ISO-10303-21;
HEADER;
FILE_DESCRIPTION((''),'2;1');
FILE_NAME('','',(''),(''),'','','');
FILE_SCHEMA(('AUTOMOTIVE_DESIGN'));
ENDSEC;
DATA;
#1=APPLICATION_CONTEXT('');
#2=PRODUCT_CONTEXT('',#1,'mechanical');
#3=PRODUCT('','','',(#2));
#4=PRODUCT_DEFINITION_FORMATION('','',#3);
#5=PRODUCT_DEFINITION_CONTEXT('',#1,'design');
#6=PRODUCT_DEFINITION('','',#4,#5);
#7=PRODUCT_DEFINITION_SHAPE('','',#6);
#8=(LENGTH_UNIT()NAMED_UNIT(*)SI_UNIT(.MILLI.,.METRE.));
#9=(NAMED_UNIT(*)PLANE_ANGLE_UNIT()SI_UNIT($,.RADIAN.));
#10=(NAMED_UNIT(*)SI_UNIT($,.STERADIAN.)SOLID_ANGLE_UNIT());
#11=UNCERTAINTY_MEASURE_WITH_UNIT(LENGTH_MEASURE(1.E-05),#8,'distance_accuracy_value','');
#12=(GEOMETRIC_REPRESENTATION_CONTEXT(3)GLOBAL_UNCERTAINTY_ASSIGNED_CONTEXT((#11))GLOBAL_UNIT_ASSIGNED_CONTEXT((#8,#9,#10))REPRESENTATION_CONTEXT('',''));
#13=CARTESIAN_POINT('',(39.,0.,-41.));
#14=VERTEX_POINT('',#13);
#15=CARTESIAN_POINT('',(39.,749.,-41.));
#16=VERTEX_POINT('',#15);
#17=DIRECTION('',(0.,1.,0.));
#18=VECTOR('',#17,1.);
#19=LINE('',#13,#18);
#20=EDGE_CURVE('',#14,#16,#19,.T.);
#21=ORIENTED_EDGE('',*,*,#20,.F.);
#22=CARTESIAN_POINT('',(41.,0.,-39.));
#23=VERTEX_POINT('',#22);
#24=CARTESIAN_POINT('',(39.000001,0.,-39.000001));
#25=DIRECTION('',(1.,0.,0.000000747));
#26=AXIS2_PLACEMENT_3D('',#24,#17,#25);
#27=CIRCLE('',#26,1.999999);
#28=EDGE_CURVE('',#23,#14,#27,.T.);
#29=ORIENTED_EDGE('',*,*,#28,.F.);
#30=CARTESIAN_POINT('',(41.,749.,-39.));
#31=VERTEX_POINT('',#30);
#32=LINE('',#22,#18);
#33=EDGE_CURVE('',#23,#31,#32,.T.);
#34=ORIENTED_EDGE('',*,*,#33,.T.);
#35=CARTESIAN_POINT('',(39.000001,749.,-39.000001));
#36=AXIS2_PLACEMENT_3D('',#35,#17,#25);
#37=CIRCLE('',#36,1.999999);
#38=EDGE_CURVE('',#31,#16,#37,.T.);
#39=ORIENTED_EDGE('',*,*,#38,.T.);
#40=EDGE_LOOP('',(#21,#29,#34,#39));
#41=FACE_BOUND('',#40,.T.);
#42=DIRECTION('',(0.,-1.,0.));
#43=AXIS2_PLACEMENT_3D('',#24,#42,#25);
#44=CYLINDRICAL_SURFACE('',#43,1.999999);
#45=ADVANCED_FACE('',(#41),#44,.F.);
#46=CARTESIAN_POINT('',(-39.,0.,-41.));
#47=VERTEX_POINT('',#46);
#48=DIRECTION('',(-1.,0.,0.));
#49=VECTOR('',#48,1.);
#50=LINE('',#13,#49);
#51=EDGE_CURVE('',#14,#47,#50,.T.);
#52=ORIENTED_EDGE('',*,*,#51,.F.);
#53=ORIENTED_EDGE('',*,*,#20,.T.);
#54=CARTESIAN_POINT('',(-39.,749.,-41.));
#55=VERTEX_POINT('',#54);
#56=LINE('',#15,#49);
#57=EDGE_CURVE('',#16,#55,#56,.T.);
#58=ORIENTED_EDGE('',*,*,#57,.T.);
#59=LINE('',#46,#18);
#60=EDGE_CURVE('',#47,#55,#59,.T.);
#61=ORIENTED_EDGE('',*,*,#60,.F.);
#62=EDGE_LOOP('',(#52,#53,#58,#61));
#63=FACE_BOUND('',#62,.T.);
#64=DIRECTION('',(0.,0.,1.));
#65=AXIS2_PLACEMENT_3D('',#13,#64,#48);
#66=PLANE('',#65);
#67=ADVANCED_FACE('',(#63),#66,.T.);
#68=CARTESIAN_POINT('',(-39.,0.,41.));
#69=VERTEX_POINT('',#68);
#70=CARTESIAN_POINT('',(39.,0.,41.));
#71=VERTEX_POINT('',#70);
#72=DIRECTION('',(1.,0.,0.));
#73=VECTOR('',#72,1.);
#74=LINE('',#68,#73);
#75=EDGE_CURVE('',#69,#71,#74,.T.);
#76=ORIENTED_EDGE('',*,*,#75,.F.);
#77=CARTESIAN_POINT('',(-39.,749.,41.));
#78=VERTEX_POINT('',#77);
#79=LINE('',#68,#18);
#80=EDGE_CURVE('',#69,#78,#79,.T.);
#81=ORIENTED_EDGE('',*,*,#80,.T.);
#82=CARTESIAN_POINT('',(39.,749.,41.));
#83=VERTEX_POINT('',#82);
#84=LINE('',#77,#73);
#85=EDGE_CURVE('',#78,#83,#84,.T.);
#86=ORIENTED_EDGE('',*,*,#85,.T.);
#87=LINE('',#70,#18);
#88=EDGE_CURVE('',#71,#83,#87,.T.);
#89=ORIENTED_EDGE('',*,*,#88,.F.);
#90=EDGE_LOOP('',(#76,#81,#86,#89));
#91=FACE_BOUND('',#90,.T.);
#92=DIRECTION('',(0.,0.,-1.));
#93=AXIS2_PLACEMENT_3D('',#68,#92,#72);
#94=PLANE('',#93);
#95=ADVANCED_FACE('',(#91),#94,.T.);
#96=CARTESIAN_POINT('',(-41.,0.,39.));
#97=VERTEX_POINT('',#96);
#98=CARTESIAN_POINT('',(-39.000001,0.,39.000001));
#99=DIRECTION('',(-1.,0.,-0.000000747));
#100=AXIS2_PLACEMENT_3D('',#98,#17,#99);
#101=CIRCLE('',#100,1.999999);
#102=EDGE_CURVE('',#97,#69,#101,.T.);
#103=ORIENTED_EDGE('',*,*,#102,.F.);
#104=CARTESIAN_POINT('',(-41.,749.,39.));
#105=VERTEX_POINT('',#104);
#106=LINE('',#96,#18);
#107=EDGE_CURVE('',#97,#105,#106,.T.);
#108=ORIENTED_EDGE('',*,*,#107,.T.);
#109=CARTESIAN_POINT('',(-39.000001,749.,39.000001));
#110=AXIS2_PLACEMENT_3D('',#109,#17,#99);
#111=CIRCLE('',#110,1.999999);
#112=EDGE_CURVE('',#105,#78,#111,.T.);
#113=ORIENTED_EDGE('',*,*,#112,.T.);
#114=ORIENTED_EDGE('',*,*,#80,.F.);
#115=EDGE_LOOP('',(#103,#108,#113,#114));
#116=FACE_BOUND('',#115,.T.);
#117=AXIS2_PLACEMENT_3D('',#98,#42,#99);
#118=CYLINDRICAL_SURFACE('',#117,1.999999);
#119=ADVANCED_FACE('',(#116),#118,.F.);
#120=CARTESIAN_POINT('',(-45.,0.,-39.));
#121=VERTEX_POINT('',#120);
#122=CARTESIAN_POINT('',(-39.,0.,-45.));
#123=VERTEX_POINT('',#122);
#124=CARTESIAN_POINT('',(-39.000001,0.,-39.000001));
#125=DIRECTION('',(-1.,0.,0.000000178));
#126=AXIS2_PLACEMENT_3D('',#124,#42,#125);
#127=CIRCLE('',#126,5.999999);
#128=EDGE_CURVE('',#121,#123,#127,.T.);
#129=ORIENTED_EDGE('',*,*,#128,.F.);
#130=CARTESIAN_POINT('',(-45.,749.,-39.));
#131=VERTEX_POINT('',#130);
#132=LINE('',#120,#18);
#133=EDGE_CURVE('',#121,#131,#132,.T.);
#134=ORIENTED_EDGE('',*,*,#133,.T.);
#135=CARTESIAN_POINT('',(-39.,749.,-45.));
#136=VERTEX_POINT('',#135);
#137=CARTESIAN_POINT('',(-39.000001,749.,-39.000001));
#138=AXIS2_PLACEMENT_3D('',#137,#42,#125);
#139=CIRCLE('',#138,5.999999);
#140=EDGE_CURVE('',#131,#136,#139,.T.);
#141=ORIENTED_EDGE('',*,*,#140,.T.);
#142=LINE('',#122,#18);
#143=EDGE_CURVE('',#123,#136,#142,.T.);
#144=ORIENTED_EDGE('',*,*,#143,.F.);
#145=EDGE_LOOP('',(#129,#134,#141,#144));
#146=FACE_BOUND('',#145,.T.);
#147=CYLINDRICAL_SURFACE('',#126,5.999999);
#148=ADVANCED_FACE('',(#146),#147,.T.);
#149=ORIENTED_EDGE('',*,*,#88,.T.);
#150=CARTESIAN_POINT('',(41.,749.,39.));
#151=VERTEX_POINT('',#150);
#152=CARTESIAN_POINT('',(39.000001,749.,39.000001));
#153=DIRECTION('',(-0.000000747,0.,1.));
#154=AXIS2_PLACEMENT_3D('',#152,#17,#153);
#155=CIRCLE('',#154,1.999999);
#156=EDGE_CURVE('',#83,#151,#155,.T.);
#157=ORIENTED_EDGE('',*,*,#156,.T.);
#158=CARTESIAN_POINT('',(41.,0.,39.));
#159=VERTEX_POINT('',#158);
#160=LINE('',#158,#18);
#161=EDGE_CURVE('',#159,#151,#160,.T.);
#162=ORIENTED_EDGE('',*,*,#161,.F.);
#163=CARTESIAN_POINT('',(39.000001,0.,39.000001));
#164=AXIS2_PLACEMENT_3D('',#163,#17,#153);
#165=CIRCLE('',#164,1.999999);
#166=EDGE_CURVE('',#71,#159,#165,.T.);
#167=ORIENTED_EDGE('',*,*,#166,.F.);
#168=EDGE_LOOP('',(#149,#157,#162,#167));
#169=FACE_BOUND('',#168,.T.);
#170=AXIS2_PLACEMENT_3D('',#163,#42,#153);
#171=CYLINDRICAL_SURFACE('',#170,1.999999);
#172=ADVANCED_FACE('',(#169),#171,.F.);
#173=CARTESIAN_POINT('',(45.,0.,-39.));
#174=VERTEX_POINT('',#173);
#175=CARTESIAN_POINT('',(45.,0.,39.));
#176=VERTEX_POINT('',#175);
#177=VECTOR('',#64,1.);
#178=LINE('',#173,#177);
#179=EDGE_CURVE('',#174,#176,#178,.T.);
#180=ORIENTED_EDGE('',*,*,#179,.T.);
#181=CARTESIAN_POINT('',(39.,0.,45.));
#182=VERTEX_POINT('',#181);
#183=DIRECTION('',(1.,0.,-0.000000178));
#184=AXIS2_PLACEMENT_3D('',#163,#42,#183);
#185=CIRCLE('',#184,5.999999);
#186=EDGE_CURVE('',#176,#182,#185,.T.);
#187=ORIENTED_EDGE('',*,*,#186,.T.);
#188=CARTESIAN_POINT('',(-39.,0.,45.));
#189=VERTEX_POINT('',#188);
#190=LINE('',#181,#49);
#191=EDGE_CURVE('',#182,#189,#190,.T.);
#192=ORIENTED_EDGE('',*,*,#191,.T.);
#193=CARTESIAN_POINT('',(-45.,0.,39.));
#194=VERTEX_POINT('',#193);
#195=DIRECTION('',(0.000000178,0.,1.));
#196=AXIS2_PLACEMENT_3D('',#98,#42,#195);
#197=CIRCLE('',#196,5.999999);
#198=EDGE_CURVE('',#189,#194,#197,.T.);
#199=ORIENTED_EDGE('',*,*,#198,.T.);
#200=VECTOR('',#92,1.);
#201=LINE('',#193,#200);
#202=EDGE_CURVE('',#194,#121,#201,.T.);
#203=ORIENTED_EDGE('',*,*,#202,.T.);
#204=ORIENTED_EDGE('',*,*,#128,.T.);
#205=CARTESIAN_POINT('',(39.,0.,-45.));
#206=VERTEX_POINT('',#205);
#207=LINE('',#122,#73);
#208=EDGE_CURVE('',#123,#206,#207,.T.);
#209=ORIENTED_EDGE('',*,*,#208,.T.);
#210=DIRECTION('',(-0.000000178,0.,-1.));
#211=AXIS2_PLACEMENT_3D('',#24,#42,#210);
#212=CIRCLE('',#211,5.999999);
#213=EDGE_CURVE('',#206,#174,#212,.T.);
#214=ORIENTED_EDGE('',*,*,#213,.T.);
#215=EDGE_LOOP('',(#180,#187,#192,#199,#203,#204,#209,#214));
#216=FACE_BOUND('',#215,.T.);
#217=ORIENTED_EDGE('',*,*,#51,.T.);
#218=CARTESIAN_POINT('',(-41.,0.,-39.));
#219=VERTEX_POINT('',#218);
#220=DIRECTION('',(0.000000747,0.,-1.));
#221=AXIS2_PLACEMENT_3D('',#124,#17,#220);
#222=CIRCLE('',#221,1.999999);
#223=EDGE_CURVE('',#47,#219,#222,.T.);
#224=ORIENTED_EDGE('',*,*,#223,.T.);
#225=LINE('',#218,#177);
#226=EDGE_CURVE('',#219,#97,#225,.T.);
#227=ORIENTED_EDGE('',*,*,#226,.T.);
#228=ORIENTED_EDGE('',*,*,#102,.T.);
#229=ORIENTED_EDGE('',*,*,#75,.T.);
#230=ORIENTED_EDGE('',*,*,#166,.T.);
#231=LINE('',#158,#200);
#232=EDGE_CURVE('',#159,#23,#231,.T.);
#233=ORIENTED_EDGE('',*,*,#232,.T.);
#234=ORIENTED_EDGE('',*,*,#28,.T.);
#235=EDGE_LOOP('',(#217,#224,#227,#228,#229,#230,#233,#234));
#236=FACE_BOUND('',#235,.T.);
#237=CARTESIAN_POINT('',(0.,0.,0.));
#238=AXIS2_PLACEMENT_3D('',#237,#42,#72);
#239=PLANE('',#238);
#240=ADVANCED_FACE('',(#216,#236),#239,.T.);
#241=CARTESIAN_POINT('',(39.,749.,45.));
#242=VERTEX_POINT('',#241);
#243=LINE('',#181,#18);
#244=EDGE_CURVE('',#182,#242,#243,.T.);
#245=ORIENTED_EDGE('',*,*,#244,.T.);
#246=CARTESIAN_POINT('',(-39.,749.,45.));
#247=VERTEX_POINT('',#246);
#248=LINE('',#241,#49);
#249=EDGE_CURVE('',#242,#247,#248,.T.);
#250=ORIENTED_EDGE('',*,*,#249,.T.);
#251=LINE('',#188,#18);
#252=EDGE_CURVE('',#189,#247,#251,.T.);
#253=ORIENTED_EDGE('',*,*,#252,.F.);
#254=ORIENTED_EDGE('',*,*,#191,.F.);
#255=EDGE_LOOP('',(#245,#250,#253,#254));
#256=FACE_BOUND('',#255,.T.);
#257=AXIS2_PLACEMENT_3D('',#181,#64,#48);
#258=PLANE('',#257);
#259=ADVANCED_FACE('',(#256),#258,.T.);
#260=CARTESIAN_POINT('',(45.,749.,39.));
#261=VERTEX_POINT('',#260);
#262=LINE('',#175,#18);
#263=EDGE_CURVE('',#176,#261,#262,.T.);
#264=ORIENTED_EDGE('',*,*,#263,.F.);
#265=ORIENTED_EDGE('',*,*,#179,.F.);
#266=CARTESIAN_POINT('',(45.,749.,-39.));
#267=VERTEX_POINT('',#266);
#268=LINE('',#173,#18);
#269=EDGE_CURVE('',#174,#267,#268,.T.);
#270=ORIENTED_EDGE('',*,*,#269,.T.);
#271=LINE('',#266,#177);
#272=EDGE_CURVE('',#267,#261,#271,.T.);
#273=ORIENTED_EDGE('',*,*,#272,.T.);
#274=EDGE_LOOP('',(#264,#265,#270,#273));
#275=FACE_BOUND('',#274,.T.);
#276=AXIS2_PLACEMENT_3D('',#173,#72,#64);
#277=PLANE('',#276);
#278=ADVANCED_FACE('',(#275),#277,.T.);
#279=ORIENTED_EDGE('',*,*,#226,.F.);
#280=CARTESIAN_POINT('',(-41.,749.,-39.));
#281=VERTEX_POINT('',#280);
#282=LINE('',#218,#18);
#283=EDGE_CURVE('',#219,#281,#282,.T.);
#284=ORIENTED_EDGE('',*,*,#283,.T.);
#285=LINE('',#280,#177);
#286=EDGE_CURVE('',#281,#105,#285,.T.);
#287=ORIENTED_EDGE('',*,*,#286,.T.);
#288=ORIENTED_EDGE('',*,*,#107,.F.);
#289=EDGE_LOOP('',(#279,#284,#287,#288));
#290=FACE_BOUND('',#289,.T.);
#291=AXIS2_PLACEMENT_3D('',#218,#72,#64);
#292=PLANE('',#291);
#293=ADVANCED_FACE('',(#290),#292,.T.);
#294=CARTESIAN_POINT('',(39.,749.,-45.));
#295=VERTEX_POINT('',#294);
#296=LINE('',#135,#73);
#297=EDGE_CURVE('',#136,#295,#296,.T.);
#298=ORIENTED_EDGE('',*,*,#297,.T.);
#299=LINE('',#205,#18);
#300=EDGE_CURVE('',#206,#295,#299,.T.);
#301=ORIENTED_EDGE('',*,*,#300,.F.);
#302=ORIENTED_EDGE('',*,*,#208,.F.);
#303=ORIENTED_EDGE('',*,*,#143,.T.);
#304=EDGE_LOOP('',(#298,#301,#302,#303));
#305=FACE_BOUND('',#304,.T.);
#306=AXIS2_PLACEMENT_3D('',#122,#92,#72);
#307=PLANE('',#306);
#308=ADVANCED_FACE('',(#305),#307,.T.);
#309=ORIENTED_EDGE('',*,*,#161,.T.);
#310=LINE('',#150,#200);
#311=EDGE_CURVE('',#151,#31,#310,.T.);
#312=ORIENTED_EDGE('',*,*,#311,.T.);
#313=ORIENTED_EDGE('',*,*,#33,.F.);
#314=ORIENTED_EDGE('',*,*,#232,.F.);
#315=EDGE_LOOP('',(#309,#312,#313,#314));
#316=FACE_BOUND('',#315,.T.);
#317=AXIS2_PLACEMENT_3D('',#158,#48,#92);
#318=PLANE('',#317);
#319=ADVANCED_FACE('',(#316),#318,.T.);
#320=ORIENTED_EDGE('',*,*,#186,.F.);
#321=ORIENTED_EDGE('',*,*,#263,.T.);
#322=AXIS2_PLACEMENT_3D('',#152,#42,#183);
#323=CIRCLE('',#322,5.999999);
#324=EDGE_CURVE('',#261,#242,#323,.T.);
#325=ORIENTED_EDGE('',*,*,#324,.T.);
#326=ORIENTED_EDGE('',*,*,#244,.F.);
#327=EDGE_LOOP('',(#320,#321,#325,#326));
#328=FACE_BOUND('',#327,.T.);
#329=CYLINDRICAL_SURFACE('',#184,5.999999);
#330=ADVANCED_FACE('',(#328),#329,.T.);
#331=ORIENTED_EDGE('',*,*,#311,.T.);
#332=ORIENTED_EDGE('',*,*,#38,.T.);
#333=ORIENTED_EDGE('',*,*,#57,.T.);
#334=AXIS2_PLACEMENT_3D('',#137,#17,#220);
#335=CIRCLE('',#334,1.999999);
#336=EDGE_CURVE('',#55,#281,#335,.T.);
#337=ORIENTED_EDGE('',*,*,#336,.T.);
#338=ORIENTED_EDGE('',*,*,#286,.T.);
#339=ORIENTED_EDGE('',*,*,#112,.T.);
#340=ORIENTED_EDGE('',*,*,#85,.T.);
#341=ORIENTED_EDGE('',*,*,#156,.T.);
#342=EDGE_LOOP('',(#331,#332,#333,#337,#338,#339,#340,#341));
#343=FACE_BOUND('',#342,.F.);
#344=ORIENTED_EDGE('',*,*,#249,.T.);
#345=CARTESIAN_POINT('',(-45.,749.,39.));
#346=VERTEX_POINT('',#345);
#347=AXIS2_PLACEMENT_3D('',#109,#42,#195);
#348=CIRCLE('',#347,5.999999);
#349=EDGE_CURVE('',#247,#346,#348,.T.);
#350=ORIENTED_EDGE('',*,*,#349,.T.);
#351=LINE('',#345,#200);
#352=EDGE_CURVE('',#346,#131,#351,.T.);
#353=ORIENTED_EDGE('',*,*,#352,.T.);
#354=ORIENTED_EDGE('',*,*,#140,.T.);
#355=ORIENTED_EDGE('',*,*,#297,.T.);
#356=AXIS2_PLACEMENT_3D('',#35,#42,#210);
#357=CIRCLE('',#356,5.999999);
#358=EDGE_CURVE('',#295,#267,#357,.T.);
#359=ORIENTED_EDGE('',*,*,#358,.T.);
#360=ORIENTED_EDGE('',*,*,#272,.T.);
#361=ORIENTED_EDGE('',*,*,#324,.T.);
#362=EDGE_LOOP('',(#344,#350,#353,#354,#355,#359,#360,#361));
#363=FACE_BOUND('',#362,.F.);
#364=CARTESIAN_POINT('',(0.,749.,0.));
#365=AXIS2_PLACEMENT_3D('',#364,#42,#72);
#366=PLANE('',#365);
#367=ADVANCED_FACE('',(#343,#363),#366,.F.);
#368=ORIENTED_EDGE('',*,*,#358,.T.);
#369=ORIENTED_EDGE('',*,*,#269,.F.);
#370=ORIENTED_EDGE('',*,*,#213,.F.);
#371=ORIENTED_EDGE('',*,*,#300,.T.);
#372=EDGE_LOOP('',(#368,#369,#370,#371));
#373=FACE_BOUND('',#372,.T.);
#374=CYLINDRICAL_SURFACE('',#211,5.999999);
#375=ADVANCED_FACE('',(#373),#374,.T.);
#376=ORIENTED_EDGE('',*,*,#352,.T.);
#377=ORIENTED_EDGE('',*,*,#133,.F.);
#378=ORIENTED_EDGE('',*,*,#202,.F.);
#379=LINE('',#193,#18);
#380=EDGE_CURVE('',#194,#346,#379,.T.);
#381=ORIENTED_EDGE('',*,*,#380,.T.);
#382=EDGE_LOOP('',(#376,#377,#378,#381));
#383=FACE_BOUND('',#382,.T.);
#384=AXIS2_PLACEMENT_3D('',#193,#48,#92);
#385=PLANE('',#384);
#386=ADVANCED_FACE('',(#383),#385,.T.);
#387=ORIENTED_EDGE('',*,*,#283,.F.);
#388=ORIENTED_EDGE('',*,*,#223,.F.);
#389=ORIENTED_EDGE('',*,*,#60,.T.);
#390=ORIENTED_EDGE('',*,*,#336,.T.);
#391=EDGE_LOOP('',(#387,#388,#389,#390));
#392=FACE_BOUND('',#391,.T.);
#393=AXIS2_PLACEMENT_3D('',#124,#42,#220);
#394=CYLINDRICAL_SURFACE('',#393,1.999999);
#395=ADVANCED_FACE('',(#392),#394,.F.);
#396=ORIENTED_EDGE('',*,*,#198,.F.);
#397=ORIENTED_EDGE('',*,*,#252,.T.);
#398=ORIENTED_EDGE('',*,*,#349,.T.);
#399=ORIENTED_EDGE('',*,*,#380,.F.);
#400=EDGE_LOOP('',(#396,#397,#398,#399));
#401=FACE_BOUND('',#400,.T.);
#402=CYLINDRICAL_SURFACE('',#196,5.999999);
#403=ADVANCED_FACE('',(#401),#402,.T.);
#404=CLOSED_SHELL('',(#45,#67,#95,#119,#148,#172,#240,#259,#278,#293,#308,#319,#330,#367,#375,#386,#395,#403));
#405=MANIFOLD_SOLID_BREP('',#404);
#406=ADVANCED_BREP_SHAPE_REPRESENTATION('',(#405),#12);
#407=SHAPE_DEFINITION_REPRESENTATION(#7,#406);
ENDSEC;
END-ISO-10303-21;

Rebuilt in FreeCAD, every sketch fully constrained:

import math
import FreeCAD as App
import Part
import Sketcher
from FreeCAD import Vector

doc = App.newDocument("Part")
body = doc.addObject("PartDesign::Body", "Body")

# Sketch on XZ plane
sketch1 = doc.addObject("Sketcher::SketchObject", "Sketch")
body.addObject(sketch1)
sketch1.AttachmentSupport = (doc.XZ_Plane, [""])
sketch1.MapMode = "FlatFace"
sketch1.addGeometry(Part.ArcOfCircle(Part.Circle(Vector(39.000001, 39.000001, 0), Vector(0, 0, 1), 5.999999), math.radians(-0.00001), math.radians(90.00001)), False)
sketch1.addGeometry(Part.LineSegment(Vector(39, 45, 0), Vector(-39, 45, 0)), False)
sketch1.addGeometry(Part.ArcOfCircle(Part.Circle(Vector(-39.000001, 39.000001, 0), Vector(0, 0, 1), 5.999999), math.radians(89.99999), math.radians(180.00001)), False)
sketch1.addGeometry(Part.LineSegment(Vector(-45, 39, 0), Vector(-45, -39, 0)), False)
sketch1.addGeometry(Part.ArcOfCircle(Part.Circle(Vector(-39.000001, -39.000001, 0), Vector(0, 0, 1), 5.999999), math.radians(179.99999), math.radians(270.00001)), False)
sketch1.addGeometry(Part.LineSegment(Vector(-39, -45, 0), Vector(39, -45, 0)), False)
sketch1.addGeometry(Part.ArcOfCircle(Part.Circle(Vector(39.000001, -39.000001, 0), Vector(0, 0, 1), 5.999999), math.radians(-90.00001), math.radians(0.00001)), False)
sketch1.addGeometry(Part.LineSegment(Vector(45, -39, 0), Vector(45, 39, 0)), False)
sketch1.addGeometry(Part.LineSegment(Vector(-41, -39, 0), Vector(-41, 39, 0)), False)
sketch1.addGeometry(Part.ArcOfCircle(Part.Circle(Vector(-39.000001, 39.000001, 0), Vector(0, 0, 1), 1.999999), math.radians(89.999957), math.radians(180.000043)), False)
sketch1.addGeometry(Part.LineSegment(Vector(-39, 41, 0), Vector(39, 41, 0)), False)
sketch1.addGeometry(Part.ArcOfCircle(Part.Circle(Vector(39.000001, 39.000001, 0), Vector(0, 0, 1), 1.999999), math.radians(-0.000043), math.radians(90.000043)), False)
sketch1.addGeometry(Part.LineSegment(Vector(41, 39, 0), Vector(41, -39, 0)), False)
sketch1.addGeometry(Part.ArcOfCircle(Part.Circle(Vector(39.000001, -39.000001, 0), Vector(0, 0, 1), 1.999999), math.radians(-90.000043), math.radians(0.000043)), False)
sketch1.addGeometry(Part.LineSegment(Vector(39, -41, 0), Vector(-39, -41, 0)), False)
sketch1.addGeometry(Part.ArcOfCircle(Part.Circle(Vector(-39.000001, -39.000001, 0), Vector(0, 0, 1), 1.999999), math.radians(179.999957), math.radians(270.000043)), False)
sketch1.addConstraint(Sketcher.Constraint("Tangent", 0, 2, 1, 1))
sketch1.addConstraint(Sketcher.Constraint("Tangent", 1, 2, 2, 1))
sketch1.addConstraint(Sketcher.Constraint("Tangent", 2, 2, 3, 1))
sketch1.addConstraint(Sketcher.Constraint("Tangent", 3, 2, 4, 1))
sketch1.addConstraint(Sketcher.Constraint("Tangent", 4, 2, 5, 1))
sketch1.addConstraint(Sketcher.Constraint("Tangent", 5, 2, 6, 1))
sketch1.addConstraint(Sketcher.Constraint("Tangent", 6, 2, 7, 1))
sketch1.addConstraint(Sketcher.Constraint("Tangent", 7, 2, 0, 1))
sketch1.addConstraint(Sketcher.Constraint("Tangent", 8, 2, 9, 2))
sketch1.addConstraint(Sketcher.Constraint("Tangent", 9, 1, 10, 1))
sketch1.addConstraint(Sketcher.Constraint("Tangent", 10, 2, 11, 2))
sketch1.addConstraint(Sketcher.Constraint("Tangent", 11, 1, 12, 1))
sketch1.addConstraint(Sketcher.Constraint("Tangent", 12, 2, 13, 2))
sketch1.addConstraint(Sketcher.Constraint("Tangent", 13, 1, 14, 1))
sketch1.addConstraint(Sketcher.Constraint("Tangent", 14, 2, 15, 2))
sketch1.addConstraint(Sketcher.Constraint("Tangent", 15, 1, 8, 1))
sketch1.addConstraint(Sketcher.Constraint("Horizontal", 1))
sketch1.addConstraint(Sketcher.Constraint("Vertical", 3))
sketch1.addConstraint(Sketcher.Constraint("Horizontal", 5))
sketch1.addConstraint(Sketcher.Constraint("Vertical", 7))
sketch1.addConstraint(Sketcher.Constraint("Vertical", 8))
sketch1.addConstraint(Sketcher.Constraint("Horizontal", 10))
sketch1.addConstraint(Sketcher.Constraint("Vertical", 12))
sketch1.addConstraint(Sketcher.Constraint("Horizontal", 14))
sketch1.addConstraint(Sketcher.Constraint("Coincident", 9, 3, 2, 3))
sketch1.addConstraint(Sketcher.Constraint("Coincident", 11, 3, 0, 3))
sketch1.addConstraint(Sketcher.Constraint("Coincident", 13, 3, 6, 3))
sketch1.addConstraint(Sketcher.Constraint("Equal", 0, 2))
sketch1.addConstraint(Sketcher.Constraint("Equal", 2, 4))
sketch1.addConstraint(Sketcher.Constraint("Equal", 4, 6))
sketch1.addConstraint(Sketcher.Constraint("Equal", 13, 15))
sketch1.addConstraint(Sketcher.Constraint("Symmetric", 0, 3, 4, 3, -1, 1))
sketch1.addConstraint(Sketcher.Constraint("Equal", 14, 3))
sketch1.addConstraint(Sketcher.Constraint("Radius", 0, 5.999999))
sketch1.addConstraint(Sketcher.Constraint("Radius", 9, 1.999999))
sketch1.addConstraint(Sketcher.Constraint("DistanceX", 1, 2, 1, 1, 78.0))
pad1 = doc.addObject("PartDesign::Pad", "Pad")
body.addObject(pad1)
pad1.Profile = sketch1
pad1.Length = 749
pad1.Reversed = True

doc.recompute()
